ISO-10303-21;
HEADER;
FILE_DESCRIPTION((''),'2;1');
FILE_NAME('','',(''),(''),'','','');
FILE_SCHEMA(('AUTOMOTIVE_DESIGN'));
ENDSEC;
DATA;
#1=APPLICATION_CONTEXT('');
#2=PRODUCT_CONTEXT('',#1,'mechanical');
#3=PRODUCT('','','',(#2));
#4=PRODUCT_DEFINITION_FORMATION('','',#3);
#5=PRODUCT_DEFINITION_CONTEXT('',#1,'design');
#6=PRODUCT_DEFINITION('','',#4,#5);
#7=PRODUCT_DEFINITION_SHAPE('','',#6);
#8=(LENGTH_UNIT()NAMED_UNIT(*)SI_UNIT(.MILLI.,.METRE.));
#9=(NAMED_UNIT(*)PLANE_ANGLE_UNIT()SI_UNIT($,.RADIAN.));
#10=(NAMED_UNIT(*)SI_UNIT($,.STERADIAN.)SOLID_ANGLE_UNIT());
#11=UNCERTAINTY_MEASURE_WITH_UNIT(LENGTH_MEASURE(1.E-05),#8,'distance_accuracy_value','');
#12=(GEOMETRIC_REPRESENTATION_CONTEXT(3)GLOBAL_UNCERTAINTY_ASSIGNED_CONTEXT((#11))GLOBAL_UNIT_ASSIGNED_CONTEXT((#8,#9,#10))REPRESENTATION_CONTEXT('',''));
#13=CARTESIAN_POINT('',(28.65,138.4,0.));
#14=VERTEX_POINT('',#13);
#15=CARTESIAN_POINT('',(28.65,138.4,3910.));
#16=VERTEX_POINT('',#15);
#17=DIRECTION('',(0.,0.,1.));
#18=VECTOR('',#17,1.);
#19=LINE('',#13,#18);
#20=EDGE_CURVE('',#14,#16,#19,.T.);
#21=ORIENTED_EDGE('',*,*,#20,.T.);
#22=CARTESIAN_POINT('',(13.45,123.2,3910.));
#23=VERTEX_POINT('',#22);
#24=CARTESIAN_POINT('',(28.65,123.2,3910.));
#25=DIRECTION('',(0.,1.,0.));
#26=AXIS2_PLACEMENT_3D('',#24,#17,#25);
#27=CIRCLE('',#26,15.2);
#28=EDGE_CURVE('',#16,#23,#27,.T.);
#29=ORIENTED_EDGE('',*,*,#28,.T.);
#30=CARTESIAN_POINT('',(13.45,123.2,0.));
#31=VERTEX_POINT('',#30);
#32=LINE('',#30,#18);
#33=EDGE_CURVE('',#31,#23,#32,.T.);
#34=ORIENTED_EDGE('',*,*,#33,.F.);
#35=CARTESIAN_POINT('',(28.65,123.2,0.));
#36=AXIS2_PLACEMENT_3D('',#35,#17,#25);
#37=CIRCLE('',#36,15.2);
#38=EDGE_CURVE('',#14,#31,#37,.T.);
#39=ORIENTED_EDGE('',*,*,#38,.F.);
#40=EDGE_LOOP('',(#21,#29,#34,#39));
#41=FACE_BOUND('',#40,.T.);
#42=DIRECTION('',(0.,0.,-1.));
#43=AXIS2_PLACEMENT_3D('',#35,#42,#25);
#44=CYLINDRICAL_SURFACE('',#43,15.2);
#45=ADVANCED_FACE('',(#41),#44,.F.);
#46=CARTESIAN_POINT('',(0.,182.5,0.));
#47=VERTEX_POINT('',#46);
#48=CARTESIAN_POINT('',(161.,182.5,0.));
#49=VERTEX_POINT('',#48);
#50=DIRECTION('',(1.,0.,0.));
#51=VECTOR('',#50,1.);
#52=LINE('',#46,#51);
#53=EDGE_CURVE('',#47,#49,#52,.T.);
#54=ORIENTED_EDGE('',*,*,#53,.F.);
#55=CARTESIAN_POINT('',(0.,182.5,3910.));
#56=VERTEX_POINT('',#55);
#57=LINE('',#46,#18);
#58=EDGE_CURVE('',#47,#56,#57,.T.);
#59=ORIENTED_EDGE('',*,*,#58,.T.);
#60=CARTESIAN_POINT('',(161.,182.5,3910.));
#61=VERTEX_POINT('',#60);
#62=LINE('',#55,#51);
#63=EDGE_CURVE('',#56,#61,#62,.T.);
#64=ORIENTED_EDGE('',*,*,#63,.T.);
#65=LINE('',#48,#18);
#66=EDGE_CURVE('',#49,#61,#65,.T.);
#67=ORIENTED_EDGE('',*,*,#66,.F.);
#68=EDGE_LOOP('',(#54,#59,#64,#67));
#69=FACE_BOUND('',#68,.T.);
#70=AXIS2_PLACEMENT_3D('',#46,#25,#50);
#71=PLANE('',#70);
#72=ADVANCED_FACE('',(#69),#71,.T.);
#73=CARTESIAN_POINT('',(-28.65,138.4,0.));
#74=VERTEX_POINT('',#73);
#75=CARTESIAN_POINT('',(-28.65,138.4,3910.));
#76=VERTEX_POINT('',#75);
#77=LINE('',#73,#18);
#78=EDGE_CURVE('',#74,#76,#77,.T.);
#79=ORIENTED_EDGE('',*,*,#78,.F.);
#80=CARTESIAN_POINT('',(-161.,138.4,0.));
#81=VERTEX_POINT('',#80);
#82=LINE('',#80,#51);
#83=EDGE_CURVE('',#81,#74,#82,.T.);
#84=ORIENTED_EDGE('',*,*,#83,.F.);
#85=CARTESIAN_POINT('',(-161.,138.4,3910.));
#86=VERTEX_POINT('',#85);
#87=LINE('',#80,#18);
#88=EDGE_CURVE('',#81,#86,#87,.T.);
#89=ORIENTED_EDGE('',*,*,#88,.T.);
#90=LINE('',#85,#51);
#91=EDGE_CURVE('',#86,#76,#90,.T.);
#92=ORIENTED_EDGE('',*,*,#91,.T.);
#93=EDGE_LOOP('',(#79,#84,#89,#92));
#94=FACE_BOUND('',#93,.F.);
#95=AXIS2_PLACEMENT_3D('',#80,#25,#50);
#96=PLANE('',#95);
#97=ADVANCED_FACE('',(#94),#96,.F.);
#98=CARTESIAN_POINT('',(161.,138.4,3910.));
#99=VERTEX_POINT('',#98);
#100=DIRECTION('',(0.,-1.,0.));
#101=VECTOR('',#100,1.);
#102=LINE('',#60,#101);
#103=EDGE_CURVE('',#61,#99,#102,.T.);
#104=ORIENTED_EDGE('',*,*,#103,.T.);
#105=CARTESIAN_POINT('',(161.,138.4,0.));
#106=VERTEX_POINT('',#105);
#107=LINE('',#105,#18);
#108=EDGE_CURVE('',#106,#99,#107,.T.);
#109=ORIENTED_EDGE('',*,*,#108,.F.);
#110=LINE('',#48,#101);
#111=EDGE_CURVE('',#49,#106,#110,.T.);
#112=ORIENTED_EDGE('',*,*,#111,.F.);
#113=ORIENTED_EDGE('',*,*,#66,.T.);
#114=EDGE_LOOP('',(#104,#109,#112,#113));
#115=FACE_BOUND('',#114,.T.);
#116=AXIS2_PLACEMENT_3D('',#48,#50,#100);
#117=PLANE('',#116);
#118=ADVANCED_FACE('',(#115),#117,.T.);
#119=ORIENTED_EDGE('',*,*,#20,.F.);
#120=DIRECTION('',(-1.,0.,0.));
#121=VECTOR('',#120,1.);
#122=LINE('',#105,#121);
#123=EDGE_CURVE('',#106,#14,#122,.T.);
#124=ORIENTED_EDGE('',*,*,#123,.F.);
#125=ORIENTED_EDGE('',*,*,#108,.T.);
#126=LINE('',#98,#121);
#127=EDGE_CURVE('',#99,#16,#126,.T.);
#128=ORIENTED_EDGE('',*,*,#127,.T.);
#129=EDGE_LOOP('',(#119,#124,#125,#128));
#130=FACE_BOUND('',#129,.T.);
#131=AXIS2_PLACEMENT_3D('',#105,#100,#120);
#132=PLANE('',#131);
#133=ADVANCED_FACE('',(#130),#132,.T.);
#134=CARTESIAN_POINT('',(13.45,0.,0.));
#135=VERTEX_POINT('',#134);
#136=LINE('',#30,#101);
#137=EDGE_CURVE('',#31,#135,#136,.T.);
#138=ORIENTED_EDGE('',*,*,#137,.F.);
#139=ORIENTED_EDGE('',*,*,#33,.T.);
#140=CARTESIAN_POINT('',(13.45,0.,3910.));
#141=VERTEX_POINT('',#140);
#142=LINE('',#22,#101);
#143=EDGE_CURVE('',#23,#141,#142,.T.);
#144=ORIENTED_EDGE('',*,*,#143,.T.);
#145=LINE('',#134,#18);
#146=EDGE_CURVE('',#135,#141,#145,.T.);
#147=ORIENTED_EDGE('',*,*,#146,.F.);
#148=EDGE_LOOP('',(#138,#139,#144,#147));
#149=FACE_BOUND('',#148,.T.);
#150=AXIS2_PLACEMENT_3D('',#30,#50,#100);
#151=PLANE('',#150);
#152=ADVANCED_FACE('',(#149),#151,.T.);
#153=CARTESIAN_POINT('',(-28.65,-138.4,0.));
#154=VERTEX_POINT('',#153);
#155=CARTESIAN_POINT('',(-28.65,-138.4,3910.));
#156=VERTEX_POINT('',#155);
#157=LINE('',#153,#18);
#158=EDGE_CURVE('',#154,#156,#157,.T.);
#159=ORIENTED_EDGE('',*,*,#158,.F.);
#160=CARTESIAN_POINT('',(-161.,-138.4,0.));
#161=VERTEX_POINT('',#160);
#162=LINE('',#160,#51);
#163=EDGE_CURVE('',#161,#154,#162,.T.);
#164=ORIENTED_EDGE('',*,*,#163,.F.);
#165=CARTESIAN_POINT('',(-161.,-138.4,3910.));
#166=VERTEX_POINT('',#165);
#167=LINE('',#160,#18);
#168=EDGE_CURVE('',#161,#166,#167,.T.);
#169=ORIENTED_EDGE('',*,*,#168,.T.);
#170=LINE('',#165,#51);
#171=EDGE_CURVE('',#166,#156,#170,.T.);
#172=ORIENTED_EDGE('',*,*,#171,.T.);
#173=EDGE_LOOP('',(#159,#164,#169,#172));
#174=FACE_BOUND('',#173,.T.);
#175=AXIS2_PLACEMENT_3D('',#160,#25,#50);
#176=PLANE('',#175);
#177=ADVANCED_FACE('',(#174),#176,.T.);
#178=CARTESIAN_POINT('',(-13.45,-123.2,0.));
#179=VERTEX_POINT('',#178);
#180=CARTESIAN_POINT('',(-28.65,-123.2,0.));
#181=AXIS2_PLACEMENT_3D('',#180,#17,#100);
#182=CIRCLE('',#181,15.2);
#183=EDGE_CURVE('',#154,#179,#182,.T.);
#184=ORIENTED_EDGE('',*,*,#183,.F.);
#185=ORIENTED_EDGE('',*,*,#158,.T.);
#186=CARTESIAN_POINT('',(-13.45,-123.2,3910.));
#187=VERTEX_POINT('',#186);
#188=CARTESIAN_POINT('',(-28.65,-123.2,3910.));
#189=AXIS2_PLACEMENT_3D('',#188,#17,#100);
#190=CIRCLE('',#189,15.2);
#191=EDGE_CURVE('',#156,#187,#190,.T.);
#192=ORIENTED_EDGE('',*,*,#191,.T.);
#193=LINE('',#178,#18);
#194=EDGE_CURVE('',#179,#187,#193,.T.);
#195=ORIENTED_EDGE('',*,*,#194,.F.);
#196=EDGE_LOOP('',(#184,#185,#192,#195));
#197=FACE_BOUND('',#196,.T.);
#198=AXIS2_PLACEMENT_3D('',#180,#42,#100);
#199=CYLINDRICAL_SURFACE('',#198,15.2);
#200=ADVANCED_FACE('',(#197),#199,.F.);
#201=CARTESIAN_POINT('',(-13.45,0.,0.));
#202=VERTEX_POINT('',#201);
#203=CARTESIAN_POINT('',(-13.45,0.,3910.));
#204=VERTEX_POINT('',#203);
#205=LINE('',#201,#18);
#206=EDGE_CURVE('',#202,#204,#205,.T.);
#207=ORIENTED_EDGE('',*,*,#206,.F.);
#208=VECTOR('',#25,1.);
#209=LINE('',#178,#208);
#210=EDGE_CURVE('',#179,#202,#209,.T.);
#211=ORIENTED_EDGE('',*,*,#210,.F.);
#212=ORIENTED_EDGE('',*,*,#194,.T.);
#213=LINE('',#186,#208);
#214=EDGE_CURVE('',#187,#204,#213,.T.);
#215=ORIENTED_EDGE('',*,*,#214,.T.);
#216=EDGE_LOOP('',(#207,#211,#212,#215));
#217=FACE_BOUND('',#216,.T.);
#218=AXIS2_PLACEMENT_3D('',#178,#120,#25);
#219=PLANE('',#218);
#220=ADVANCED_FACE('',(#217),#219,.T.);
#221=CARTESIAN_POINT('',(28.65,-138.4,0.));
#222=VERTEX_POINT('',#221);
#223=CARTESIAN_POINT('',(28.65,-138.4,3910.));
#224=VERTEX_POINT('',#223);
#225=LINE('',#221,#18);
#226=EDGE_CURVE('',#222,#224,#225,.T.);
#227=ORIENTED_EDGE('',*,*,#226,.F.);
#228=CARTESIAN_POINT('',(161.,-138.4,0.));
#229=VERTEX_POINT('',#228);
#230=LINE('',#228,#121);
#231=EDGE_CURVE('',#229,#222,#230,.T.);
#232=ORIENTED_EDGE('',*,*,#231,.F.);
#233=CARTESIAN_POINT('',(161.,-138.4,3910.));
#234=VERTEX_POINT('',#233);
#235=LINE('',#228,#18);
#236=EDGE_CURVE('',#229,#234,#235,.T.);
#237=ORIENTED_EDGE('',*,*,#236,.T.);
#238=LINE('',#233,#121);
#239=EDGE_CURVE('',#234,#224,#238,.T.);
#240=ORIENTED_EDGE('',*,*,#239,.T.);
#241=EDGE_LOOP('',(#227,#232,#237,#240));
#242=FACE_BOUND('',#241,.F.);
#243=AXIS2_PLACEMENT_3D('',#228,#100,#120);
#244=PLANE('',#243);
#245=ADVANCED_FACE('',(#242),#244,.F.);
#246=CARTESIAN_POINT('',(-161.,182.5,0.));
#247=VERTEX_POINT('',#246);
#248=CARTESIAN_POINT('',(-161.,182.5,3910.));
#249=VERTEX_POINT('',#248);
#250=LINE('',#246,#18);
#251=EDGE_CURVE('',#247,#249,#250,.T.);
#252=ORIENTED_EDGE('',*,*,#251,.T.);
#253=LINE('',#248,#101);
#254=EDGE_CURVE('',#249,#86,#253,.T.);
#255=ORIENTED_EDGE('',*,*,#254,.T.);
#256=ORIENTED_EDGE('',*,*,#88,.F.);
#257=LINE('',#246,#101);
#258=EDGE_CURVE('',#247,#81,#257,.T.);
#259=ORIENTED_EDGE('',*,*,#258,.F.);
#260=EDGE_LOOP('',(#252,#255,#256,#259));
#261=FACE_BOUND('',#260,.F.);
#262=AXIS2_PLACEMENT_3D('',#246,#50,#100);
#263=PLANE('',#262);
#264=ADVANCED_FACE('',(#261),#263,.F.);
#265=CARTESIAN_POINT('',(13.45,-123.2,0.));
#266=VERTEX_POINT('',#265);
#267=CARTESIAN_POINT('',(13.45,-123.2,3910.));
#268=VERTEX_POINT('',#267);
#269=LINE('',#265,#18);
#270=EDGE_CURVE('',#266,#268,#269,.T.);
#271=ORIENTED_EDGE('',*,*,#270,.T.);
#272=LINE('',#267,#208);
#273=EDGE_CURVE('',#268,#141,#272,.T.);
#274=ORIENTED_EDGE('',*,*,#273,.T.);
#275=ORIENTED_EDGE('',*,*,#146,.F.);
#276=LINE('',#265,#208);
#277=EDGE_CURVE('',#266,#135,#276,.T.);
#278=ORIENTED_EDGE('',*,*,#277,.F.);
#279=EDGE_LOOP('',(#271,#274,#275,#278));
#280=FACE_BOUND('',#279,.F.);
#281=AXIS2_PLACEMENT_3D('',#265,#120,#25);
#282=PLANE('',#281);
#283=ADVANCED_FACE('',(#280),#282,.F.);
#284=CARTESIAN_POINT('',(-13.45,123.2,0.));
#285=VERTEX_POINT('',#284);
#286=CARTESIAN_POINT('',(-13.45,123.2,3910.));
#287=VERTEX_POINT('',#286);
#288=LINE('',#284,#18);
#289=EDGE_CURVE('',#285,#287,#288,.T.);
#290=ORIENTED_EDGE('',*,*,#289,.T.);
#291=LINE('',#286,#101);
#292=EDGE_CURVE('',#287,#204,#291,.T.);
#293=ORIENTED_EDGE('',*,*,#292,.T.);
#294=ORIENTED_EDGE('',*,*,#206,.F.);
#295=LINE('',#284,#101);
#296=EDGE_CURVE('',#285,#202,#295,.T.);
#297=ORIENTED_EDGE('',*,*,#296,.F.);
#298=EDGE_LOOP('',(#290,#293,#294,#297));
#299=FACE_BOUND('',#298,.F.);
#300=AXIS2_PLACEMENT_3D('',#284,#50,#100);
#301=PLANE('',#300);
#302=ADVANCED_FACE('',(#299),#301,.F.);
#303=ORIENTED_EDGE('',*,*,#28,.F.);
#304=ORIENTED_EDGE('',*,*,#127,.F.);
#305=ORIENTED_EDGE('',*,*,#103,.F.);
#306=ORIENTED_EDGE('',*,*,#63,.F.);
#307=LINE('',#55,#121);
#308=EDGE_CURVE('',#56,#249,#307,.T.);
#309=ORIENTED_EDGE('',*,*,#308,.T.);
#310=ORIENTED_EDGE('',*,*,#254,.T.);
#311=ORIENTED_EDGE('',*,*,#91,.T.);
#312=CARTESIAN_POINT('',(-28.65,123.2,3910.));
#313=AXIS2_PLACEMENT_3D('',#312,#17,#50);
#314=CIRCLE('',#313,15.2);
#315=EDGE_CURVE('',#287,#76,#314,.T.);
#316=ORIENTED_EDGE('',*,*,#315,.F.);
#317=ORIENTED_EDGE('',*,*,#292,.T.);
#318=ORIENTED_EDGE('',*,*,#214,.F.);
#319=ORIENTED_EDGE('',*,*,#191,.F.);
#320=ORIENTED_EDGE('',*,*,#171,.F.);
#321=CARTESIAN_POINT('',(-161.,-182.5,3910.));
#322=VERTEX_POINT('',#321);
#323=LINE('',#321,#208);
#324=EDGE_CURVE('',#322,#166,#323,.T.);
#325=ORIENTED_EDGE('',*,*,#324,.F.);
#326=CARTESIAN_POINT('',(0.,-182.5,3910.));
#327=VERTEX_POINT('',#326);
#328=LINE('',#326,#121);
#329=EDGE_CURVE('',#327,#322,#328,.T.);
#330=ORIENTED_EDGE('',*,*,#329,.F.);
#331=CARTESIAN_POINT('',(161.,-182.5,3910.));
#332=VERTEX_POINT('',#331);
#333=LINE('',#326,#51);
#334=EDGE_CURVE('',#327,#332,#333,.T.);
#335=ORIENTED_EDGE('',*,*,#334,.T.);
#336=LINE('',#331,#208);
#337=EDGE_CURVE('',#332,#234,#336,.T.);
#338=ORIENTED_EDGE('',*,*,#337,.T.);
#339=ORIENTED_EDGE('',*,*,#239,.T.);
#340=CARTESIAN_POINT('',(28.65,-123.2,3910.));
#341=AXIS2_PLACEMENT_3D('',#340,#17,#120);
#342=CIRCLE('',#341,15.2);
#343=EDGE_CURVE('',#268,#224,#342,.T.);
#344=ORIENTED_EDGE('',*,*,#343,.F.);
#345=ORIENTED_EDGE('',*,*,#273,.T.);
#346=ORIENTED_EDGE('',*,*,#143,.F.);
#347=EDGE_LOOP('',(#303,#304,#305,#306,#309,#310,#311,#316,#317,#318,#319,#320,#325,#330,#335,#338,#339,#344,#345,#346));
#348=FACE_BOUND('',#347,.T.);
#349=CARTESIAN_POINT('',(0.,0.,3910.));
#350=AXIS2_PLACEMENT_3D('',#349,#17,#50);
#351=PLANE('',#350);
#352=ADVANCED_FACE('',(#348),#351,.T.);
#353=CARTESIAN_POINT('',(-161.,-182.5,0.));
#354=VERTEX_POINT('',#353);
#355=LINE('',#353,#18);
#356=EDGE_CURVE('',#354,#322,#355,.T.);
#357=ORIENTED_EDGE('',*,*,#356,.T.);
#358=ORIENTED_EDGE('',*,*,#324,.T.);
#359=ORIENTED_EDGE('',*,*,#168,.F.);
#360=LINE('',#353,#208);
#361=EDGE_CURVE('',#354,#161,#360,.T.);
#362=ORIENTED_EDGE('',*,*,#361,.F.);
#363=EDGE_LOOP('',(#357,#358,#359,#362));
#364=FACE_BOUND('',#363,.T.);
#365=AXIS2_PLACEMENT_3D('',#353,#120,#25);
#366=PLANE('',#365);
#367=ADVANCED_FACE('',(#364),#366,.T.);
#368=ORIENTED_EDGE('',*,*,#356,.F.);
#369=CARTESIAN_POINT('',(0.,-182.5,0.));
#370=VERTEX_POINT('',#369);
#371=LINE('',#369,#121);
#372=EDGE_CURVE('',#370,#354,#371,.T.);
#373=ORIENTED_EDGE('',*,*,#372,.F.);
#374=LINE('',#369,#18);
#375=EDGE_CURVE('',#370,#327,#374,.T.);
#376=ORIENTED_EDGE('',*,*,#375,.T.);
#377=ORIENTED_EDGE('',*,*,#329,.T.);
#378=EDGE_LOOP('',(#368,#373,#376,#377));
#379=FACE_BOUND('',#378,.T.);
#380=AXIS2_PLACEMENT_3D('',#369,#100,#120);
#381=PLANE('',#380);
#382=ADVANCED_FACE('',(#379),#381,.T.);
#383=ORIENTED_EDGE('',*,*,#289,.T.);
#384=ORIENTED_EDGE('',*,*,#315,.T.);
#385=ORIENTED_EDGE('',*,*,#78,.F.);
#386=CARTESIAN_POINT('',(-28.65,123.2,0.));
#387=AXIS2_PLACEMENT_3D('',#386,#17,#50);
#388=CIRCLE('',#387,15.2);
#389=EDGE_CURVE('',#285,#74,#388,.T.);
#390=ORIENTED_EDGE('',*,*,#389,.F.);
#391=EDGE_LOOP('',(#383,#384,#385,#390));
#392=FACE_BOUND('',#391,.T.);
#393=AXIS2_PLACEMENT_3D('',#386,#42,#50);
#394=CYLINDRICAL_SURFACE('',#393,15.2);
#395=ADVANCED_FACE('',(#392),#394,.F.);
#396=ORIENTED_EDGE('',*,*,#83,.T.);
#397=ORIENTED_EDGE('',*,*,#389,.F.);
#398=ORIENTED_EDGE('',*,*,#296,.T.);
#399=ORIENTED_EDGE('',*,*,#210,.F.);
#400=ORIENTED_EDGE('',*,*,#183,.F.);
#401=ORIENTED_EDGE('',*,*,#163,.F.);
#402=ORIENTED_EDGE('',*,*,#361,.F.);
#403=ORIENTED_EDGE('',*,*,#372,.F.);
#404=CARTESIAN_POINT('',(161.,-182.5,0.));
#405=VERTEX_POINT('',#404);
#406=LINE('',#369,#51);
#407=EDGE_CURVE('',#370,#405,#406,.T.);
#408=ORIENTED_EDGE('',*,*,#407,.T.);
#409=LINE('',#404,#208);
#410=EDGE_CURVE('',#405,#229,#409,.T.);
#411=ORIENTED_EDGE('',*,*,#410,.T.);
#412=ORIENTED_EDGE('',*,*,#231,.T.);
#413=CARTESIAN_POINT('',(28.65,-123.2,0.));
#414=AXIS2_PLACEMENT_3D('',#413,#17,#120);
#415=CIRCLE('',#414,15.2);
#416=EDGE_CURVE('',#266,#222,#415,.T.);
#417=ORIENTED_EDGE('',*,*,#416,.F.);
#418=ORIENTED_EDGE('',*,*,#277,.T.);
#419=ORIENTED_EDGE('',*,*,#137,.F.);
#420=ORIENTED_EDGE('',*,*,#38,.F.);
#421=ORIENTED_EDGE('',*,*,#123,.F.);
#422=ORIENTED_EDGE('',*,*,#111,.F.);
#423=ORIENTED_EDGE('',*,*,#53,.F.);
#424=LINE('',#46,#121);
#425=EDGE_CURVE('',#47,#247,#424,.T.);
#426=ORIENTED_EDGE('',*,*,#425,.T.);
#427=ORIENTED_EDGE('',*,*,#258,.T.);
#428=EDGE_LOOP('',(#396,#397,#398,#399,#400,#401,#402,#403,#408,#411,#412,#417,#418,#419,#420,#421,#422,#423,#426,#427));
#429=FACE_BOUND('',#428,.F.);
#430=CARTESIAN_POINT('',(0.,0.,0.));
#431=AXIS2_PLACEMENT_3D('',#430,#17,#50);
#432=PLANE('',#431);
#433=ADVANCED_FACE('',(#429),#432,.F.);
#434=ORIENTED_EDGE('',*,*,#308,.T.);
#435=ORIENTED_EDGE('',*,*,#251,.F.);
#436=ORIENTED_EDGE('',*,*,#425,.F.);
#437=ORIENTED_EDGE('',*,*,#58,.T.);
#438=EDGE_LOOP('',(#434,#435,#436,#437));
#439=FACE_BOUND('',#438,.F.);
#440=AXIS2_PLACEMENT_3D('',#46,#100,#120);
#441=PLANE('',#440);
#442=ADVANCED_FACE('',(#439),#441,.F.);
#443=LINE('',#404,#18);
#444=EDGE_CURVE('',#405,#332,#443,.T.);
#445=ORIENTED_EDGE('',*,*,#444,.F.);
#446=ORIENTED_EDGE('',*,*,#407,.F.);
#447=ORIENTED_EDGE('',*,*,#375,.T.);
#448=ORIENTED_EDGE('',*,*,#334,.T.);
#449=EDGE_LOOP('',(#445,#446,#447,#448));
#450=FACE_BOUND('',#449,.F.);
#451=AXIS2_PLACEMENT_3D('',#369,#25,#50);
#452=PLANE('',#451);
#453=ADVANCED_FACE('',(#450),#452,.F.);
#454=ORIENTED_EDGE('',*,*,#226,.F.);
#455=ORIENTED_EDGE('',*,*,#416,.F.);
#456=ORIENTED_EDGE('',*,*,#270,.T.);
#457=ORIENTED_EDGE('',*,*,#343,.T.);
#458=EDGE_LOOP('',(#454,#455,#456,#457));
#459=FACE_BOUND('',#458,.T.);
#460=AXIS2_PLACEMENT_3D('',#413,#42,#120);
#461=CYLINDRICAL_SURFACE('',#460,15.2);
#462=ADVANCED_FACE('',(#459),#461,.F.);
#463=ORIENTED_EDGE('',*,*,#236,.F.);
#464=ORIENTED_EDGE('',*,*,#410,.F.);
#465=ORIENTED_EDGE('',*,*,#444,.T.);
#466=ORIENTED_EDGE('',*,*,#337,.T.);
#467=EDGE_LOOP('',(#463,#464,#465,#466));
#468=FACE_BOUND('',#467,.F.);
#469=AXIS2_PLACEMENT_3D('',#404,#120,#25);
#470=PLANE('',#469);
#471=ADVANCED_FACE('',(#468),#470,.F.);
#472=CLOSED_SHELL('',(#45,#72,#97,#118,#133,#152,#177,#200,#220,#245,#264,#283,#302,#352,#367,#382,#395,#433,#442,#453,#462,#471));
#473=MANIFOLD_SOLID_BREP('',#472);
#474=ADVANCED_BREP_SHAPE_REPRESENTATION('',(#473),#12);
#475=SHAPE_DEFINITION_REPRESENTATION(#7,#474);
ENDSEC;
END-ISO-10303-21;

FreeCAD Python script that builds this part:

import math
import FreeCAD as App
import Part
import Sketcher

doc = App.newDocument("Part")
body = doc.addObject("PartDesign::Body", "Body")

# Sketch on XY plane
sketch1 = doc.addObject("Sketcher::SketchObject", "Sketch")
body.addObject(sketch1)
sketch1.AttachmentSupport = (doc.XY_Plane, [""])
sketch1.MapMode = "FlatFace"
sketch1.addGeometry([
    Part.LineSegment(App.Vector(-161, -138, 0), App.Vector(-161, -182, 0)),  # 0
    Part.LineSegment(App.Vector(-161, -182, 0), App.Vector(161, -182, 0)),  # 1
    Part.LineSegment(App.Vector(161, -182, 0), App.Vector(161, -138, 0)),  # 2
    Part.LineSegment(App.Vector(161, -138, 0), App.Vector(29, -138, 0)),  # 3
    Part.ArcOfCircle(Part.Circle(App.Vector(29, -123, 0), App.Vector(0, 0, 1), 15), math.radians(180), math.radians(270)),  # 4
    Part.LineSegment(App.Vector(13, -123, 0), App.Vector(13, 123, 0)),  # 5
    Part.ArcOfCircle(Part.Circle(App.Vector(29, 123, 0), App.Vector(0, 0, 1), 15), math.radians(90), math.radians(180)),  # 6
    Part.LineSegment(App.Vector(29, 138, 0), App.Vector(161, 138, 0)),  # 7
    Part.LineSegment(App.Vector(161, 138, 0), App.Vector(161, 182, 0)),  # 8
    Part.LineSegment(App.Vector(161, 182, 0), App.Vector(-161, 182, 0)),  # 9
    Part.LineSegment(App.Vector(-161, 182, 0), App.Vector(-161, 138, 0)),  # 10
    Part.LineSegment(App.Vector(-161, 138, 0), App.Vector(-29, 138, 0)),  # 11
    Part.ArcOfCircle(Part.Circle(App.Vector(-29, 123, 0), App.Vector(0, 0, 1), 15), math.radians(0), math.radians(90)),  # 12
    Part.LineSegment(App.Vector(-13, 123, 0), App.Vector(-13, -123, 0)),  # 13
    Part.ArcOfCircle(Part.Circle(App.Vector(-29, -123, 0), App.Vector(0, 0, 1), 15), math.radians(-90), math.radians(0)),  # 14
    Part.LineSegment(App.Vector(-29, -138, 0), App.Vector(-161, -138, 0)),  # 15
], False)
sketch1.addConstraint([
    Sketcher.Constraint("Coincident", 0, 2, 1, 1),
    Sketcher.Constraint("Coincident", 1, 2, 2, 1),
    Sketcher.Constraint("Coincident", 2, 2, 3, 1),
    Sketcher.Constraint("Tangent", 3, 2, 4, 2),
    Sketcher.Constraint("Tangent", 4, 1, 5, 1),
    Sketcher.Constraint("Tangent", 5, 2, 6, 2),
    Sketcher.Constraint("Tangent", 6, 1, 7, 1),
    Sketcher.Constraint("Coincident", 7, 2, 8, 1),
    Sketcher.Constraint("Coincident", 8, 2, 9, 1),
    Sketcher.Constraint("Coincident", 9, 2, 10, 1),
    Sketcher.Constraint("Coincident", 10, 2, 11, 1),
    Sketcher.Constraint("Tangent", 11, 2, 12, 2),
    Sketcher.Constraint("Tangent", 12, 1, 13, 1),
    Sketcher.Constraint("Tangent", 13, 2, 14, 2),
    Sketcher.Constraint("Tangent", 14, 1, 15, 1),
    Sketcher.Constraint("Coincident", 15, 2, 0, 1),
    Sketcher.Constraint("Vertical", 0),
    Sketcher.Constraint("Horizontal", 1),
    Sketcher.Constraint("Vertical", 2),
    Sketcher.Constraint("Horizontal", 3),
    Sketcher.Constraint("Vertical", 5),
    Sketcher.Constraint("Horizontal", 7),
    Sketcher.Constraint("Vertical", 8),
    Sketcher.Constraint("Horizontal", 9),
    Sketcher.Constraint("Vertical", 10),
    Sketcher.Constraint("Horizontal", 11),
    Sketcher.Constraint("Vertical", 13),
    Sketcher.Constraint("Horizontal", 15),
    Sketcher.Constraint("Equal", 4, 6),
    Sketcher.Constraint("Equal", 6, 12),
    Sketcher.Constraint("Equal", 12, 14),
    Sketcher.Constraint("Symmetric", 4, 3, 12, 3, -1, 1),
    Sketcher.Constraint("Symmetric", 0, 2, 8, 2, -1, 1),
    Sketcher.Constraint("Symmetric", 7, 2, 10, 2, -2),
    Sketcher.Constraint("Symmetric", 2, 2, 15, 2, -2),
    Sketcher.Constraint("Radius", 4, 15.2),
    Sketcher.Constraint("DistanceY", 0, 2, 0, 1, 44.1),
    Sketcher.Constraint("DistanceX", 0, 2, -1, 1, 161.0),
    Sketcher.Constraint("DistanceY", 0, 2, -1, 1, 182.5),
    Sketcher.Constraint("DistanceX", -1, 1, 4, 1, 13.45),
])
pad1 = doc.addObject("PartDesign::Pad", "Pad")
body.addObject(pad1)
pad1.Profile = sketch1
pad1.Length = 3910

doc.recompute()
